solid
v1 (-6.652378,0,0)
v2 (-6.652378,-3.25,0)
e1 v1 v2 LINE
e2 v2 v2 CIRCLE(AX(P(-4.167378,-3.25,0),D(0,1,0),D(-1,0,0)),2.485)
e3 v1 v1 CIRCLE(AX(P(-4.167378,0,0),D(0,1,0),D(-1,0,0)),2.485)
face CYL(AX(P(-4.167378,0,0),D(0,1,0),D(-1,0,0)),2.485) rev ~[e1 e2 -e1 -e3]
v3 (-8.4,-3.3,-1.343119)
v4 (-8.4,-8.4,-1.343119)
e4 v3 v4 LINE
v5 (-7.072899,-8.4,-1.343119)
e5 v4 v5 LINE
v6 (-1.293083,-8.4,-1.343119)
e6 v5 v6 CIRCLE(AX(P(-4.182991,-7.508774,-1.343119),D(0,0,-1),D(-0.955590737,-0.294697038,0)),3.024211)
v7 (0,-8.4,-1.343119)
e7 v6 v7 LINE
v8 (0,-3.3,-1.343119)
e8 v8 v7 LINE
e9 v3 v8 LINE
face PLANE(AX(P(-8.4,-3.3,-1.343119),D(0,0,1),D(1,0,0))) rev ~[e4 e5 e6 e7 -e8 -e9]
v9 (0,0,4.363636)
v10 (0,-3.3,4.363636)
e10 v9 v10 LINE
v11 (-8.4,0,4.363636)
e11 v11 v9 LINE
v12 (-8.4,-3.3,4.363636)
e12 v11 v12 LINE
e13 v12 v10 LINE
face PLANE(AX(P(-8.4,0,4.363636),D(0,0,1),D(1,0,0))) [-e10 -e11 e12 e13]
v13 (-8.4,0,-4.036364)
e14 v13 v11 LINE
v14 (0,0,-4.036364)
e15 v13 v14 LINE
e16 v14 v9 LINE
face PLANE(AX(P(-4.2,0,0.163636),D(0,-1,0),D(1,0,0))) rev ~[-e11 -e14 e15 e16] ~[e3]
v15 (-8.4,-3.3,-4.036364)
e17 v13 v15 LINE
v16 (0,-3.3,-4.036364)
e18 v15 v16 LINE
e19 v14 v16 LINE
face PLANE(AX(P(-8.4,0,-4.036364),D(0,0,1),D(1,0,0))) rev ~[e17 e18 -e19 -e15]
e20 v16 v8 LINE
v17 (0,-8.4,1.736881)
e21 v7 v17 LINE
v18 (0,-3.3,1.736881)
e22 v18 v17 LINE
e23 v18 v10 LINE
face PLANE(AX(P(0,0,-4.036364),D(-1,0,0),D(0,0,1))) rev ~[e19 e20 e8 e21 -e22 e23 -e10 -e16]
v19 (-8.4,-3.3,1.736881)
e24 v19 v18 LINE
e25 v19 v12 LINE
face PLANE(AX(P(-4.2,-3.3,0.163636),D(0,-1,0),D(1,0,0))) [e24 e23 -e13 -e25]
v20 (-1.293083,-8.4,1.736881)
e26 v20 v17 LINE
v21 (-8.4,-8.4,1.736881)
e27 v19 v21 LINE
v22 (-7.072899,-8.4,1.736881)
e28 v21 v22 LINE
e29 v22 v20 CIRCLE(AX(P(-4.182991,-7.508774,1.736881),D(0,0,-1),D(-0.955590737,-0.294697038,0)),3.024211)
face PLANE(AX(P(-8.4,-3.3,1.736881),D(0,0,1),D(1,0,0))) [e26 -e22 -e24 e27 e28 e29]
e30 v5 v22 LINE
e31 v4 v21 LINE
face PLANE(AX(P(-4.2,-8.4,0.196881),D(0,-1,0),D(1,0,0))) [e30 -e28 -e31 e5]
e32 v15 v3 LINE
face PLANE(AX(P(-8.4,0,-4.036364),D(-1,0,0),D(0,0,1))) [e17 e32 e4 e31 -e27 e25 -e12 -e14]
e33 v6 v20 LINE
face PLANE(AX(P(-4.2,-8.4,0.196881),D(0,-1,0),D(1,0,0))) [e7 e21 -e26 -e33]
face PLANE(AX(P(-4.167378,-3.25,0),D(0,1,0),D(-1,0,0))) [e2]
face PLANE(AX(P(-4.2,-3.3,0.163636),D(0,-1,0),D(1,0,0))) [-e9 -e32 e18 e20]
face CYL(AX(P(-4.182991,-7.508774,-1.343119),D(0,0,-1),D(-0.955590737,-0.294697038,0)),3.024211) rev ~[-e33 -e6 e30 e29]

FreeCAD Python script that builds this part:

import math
import FreeCAD as App
import Part
import Sketcher
from FreeCAD import Vector
Q = App.Units.Quantity


def add_polygon(sketch, points):
    """Adds a closed chain of lines whose ends are joined by coincident constraints."""
    first, n = sketch.GeometryCount, len(points)
    for a, b in zip(points, points[1:] + points[:1]):
        sketch.addGeometry(Part.LineSegment(App.Vector(*a, 0), App.Vector(*b, 0)), False)
    for i in range(n):
        sketch.addConstraint(Sketcher.Constraint("Coincident", first + i, 2, first + (i + 1) % n, 1))

doc = App.newDocument("Part")
body = doc.addObject("PartDesign::Body", "Body")

# Sketch on XZ plane
sketch1 = body.newObject("Sketcher::SketchObject", "Sketch")
sketch1.AttachmentSupport = (doc.getObject("XZ_Plane"), [""])
sketch1.MapMode = "FlatFace"
add_polygon(sketch1, [(-8, 4), (-8, -4), (0, -4), (0, 4)])  # lines 0-3
sketch1.addConstraint(Sketcher.Constraint("Vertical", 0))
sketch1.addConstraint(Sketcher.Constraint("Horizontal", 1))
sketch1.addConstraint(Sketcher.Constraint("Vertical", 2))
sketch1.addConstraint(Sketcher.Constraint("Horizontal", 3))
sketch1.addConstraint(Sketcher.Constraint("PointOnObject", 1, 2, -2))
sketch1.addConstraint(Sketcher.Constraint("Equal", 3, 0))
sketch1.addConstraint(Sketcher.Constraint("DistanceX", 1, 1, 1, 2, Q("8.4 mm")))
sketch1.addConstraint(Sketcher.Constraint("DistanceY", 0, 2, -1, 1, Q("4.036364 mm")))
pad1 = body.newObject("PartDesign::Pad", "Pad")
pad1.Profile = sketch1
pad1.Length = 3.3

# Sketch on XZ plane
sketch2 = body.newObject("Sketcher::SketchObject", "Sketch001")
sketch2.AttachmentSupport = (doc.getObject("XZ_Plane"), [""])
sketch2.MapMode = "FlatFace"
sketch2.AttachmentOffset = App.Placement(Vector(0, 0, 3.3), App.Rotation())
add_polygon(sketch2, [(-8.4, 1.7), (-8.4, -1.3), (0, -1.3), (0, 1.7)])  # lines 0-3
sketch2.addConstraint(Sketcher.Constraint("Vertical", 0))
sketch2.addConstraint(Sketcher.Constraint("Horizontal", 1))
sketch2.addConstraint(Sketcher.Constraint("Vertical", 2))
sketch2.addConstraint(Sketcher.Constraint("Horizontal", 3))
sketch2.addConstraint(Sketcher.Constraint("PointOnObject", 1, 2, -2))
sketch2.addConstraint(Sketcher.Constraint("DistanceX", 1, 1, 1, 2, Q("8.4 mm")))
sketch2.addConstraint(Sketcher.Constraint("DistanceY", 0, 2, 0, 1, Q("3.08 mm")))
sketch2.addConstraint(Sketcher.Constraint("DistanceY", 0, 2, -1, 1, Q("1.343119 mm")))
pad2 = body.newObject("PartDesign::Pad", "Pad001")
pad2.Profile = sketch2
pad2.Length = 5.1

# Sketch on XY plane
sketch3 = body.newObject("Sketcher::SketchObject", "Sketch002")
sketch3.AttachmentSupport = (doc.getObject("XY_Plane"), [""])
sketch3.MapMode = "FlatFace"
sketch3.AttachmentOffset = App.Placement(Vector(0, 0, -1.343119), App.Rotation())
sketch3.addGeometry(Part.LineSegment(Vector(-1.3, -8.4, 0), Vector(-7.1, -8.4, 0)), False)
sketch3.addGeometry(Part.ArcOfCircle(Part.Circle(Vector(-4.2, -7.5, 0), Vector(0, 0, 1), 3), math.radians(-17), math.radians(197)), False)
sketch3.addConstraint(Sketcher.Constraint("Coincident", 0, 1, 1, 1))
sketch3.addConstraint(Sketcher.Constraint("Coincident", 1, 2, 0, 2))
sketch3.addConstraint(Sketcher.Constraint("Horizontal", 0))
sketch3.addConstraint(Sketcher.Constraint("DistanceY", 0, 1, -1, 1, Q("8.4 mm")))
sketch3.addConstraint(Sketcher.Constraint("Radius", 1, Q("3.024211 mm")))
sketch3.addConstraint(Sketcher.Constraint("DistanceX", 1, 2, -1, 1, Q("7.072899 mm")))
sketch3.addConstraint(Sketcher.Constraint("DistanceX", 0, 2, 0, 1, Q("5.779816 mm")))
pocket1 = body.newObject("PartDesign::Pocket", "Pocket")
pocket1.Profile = sketch3
pocket1.Length = 25
pocket1.Reversed = True

# Sketch on XZ plane
sketch4 = body.newObject("Sketcher::SketchObject", "Sketch003")
sketch4.AttachmentSupport = (doc.getObject("XZ_Plane"), [""])
sketch4.MapMode = "FlatFace"
sketch4.addGeometry(Part.Circle(Vector(-4.2, 0, 0), Vector(0, 0, 1), 2.5), False)
sketch4.addConstraint(Sketcher.Constraint("PointOnObject", 0, 3, -1))
sketch4.addConstraint(Sketcher.Constraint("Diameter", 0, Q("4.97 mm")))
sketch4.addConstraint(Sketcher.Constraint("DistanceX", 0, 3, -1, 1, Q("4.167378 mm")))
pocket2 = body.newObject("PartDesign::Pocket", "Pocket001")
pocket2.Profile = sketch4
pocket2.Length = 3.25
pocket2.Reversed = True

doc.recompute()
